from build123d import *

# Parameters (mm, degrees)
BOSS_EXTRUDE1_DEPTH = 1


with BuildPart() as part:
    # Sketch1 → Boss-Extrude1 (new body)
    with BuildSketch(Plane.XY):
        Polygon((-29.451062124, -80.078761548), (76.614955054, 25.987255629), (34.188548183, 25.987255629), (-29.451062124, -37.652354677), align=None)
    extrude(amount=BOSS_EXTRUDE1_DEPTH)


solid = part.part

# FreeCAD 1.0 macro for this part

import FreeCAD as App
import Part
import Sketcher
from FreeCAD import Vector
Q = App.Units.Quantity

doc = App.newDocument("Part")
params = doc.addObject("Spreadsheet::Sheet", "Params")
for row, (alias, value) in enumerate([
    ("sketch1_length", "150 mm"),
    ("sketch1_length2", "90 mm"),
    ("pad1_length", "1 mm"),
], start=1):
    params.set(f"A{row}", alias)
    params.set(f"B{row}", "=" + value)
    params.setAlias(f"B{row}", alias)

body = doc.addObject("PartDesign::Body", "Body")

# Sketch on XY plane
sketch1 = body.newObject("Sketcher::SketchObject", "Sketch")
sketch1.AttachmentSupport = (doc.getObject("XY_Plane"), [""])
sketch1.MapMode = "FlatFace"
sketch1.addGeometry([
    Part.LineSegment(Vector(-29, -80, 0), Vector(77, 26, 0)),
    Part.LineSegment(Vector(77, 26, 0), Vector(34, 26, 0)),
    Part.LineSegment(Vector(34, 26, 0), Vector(-29, -38, 0)),
    Part.LineSegment(Vector(-29, -38, 0), Vector(-29, -80, 0)),
], False)
sketch1.addConstraint([
    Sketcher.Constraint("Coincident", 0, 2, 1, 1),
    Sketcher.Constraint("Coincident", 1, 2, 2, 1),
    Sketcher.Constraint("Coincident", 2, 2, 3, 1),
    Sketcher.Constraint("Coincident", 3, 2, 0, 1),
    Sketcher.Constraint("Horizontal", 1),
    Sketcher.Constraint("Vertical", 3),
    Sketcher.Constraint("Parallel", 0, 2),
    Sketcher.Constraint("Equal", 1, 3),
    Sketcher.Constraint("Distance", 0, Q("150 mm")),
    Sketcher.Constraint("Distance", 2, Q("90 mm")),
    Sketcher.Constraint("DistanceX", -1, 1, 1, 2, Q("34.188548 mm")),
    Sketcher.Constraint("DistanceY", 3, 2, -1, 1, Q("80.078762 mm")),
])
sketch1.setExpression("Constraints[8]", "Params.sketch1_length")
sketch1.setExpression("Constraints[9]", "Params.sketch1_length2")
pad1 = body.newObject("PartDesign::Pad", "Pad")
pad1.Profile = sketch1
pad1.setExpression("Length", "Params.pad1_length")

doc.recompute()
